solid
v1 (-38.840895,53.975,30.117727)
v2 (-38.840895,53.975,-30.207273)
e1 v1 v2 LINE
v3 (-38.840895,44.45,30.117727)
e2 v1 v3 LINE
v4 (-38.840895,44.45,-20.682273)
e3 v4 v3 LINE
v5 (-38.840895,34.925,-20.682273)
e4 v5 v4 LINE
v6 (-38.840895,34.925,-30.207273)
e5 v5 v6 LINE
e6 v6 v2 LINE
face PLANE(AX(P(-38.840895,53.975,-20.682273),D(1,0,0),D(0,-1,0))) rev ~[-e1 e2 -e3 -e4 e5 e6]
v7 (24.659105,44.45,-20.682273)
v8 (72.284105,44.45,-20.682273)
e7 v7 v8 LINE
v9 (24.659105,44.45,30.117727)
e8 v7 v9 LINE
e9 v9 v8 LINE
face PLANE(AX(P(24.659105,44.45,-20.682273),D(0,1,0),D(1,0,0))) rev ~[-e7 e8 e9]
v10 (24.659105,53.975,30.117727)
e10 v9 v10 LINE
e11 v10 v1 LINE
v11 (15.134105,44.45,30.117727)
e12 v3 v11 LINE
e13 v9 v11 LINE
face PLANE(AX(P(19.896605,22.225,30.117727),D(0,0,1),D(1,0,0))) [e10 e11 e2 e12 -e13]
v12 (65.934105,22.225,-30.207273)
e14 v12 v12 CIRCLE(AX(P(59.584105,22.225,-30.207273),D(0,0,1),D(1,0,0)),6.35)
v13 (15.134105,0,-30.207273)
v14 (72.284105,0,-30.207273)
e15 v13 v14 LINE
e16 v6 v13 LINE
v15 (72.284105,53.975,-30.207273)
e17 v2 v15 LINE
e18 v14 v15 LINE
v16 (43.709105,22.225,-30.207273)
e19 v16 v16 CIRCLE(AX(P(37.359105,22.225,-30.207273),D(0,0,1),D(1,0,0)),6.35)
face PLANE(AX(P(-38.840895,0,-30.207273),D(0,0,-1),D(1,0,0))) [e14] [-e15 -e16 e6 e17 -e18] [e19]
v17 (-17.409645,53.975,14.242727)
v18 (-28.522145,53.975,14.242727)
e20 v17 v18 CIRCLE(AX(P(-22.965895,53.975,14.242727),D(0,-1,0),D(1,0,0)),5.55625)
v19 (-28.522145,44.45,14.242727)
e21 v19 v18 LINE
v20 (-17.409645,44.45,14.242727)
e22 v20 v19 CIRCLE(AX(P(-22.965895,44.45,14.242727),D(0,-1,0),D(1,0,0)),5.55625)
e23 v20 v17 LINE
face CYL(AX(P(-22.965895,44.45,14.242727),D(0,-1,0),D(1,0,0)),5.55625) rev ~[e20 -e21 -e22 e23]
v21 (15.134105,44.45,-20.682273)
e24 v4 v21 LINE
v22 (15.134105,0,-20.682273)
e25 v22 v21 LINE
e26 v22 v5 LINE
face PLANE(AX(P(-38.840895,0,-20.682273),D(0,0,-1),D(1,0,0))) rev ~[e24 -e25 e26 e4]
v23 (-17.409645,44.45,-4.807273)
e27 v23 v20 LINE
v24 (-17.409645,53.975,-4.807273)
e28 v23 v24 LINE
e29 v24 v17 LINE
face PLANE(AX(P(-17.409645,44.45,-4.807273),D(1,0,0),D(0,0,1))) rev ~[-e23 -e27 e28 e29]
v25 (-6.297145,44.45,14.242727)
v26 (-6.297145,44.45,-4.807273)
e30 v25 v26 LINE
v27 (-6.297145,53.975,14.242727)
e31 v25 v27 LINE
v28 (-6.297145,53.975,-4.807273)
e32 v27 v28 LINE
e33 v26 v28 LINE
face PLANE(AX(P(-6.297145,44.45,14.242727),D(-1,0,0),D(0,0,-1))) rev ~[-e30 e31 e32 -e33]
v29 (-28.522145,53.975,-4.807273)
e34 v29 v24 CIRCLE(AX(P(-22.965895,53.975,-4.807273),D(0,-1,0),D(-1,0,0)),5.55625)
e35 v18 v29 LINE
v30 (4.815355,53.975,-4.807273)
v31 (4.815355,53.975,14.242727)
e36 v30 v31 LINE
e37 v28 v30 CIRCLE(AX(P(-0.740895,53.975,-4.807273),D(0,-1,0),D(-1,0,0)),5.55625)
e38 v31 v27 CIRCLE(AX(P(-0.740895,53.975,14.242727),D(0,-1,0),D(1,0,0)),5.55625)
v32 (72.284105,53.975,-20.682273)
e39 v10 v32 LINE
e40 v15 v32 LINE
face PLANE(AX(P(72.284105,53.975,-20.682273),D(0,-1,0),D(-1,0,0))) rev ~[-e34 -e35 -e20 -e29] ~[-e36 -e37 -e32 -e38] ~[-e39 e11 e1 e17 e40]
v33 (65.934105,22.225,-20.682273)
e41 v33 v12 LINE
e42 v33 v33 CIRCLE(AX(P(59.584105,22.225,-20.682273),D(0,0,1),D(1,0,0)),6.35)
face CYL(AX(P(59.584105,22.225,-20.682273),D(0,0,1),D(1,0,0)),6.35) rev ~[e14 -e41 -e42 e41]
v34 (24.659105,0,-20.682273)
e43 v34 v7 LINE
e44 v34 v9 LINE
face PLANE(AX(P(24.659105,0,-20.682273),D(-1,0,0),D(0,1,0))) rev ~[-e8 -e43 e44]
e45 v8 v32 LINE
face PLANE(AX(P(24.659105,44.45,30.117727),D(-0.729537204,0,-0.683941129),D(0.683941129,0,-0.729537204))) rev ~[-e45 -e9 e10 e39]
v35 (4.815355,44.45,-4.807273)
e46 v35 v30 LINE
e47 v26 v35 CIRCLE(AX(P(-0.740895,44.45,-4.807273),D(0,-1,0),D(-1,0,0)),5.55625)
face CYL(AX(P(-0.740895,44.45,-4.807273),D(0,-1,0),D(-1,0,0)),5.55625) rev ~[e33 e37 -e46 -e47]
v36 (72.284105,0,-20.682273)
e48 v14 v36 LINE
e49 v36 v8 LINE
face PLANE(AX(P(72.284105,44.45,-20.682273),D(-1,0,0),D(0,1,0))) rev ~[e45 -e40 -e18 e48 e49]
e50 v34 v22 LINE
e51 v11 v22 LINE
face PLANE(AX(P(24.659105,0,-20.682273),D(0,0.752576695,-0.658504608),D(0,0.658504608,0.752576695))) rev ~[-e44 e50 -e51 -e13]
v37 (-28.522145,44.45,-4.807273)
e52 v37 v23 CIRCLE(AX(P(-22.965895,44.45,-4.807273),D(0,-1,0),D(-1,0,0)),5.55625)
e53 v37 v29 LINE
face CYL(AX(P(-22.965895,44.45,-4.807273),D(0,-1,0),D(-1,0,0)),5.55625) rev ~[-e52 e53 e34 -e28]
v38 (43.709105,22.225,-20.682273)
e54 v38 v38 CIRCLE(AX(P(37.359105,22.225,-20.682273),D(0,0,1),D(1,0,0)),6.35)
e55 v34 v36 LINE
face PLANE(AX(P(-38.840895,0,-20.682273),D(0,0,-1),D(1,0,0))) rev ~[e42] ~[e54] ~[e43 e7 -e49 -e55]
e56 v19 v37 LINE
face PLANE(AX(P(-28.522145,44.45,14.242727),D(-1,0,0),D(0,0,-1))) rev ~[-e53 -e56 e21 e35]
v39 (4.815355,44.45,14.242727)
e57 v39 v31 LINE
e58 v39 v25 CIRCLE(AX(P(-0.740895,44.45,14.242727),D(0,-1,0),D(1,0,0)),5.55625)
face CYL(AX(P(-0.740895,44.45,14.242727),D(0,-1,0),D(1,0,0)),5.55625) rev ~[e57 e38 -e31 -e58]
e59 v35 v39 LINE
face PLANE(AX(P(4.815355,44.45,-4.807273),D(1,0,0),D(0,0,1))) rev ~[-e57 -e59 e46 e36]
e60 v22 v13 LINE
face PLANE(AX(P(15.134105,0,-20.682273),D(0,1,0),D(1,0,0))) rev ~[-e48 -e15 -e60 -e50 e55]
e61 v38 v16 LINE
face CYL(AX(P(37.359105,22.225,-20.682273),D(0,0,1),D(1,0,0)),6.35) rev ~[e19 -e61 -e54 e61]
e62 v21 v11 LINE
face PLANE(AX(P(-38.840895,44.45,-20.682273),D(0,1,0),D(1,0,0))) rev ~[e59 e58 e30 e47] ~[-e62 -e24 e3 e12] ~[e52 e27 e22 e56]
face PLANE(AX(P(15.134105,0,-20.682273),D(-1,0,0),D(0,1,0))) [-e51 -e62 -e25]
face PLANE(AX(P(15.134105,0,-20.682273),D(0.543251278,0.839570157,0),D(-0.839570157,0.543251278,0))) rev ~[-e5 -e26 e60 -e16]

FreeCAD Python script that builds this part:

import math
import FreeCAD as App
import Part
import Sketcher
from FreeCAD import Vector
Q = App.Units.Quantity

doc = App.newDocument("Part")
body = doc.addObject("PartDesign::Body", "Body")

# Sketch on XZ plane
sketch1 = body.newObject("Sketcher::SketchObject", "Sketch")
sketch1.AttachmentSupport = (doc.getObject("XZ_Plane"), [""])
sketch1.MapMode = "FlatFace"
sketch1.addGeometry(Part.LineSegment(Vector(-39, -21, 0), Vector(-39, -30, 0)), False)
sketch1.addGeometry(Part.LineSegment(Vector(-39, -30, 0), Vector(72, -30, 0)), False)
sketch1.addGeometry(Part.LineSegment(Vector(72, -30, 0), Vector(72, -21, 0)), False)
sketch1.addGeometry(Part.LineSegment(Vector(72, -21, 0), Vector(-39, -21, 0)), False)
sketch1.addConstraint(Sketcher.Constraint("Coincident", 0, 2, 1, 1))
sketch1.addConstraint(Sketcher.Constraint("Coincident", 1, 2, 2, 1))
sketch1.addConstraint(Sketcher.Constraint("Coincident", 2, 2, 3, 1))
sketch1.addConstraint(Sketcher.Constraint("Coincident", 3, 2, 0, 1))
sketch1.addConstraint(Sketcher.Constraint("Vertical", 0))
sketch1.addConstraint(Sketcher.Constraint("Horizontal", 1))
sketch1.addConstraint(Sketcher.Constraint("Vertical", 2))
sketch1.addConstraint(Sketcher.Constraint("Horizontal", 3))
sketch1.addConstraint(Sketcher.Constraint("DistanceX", 1, 1, 1, 2, Q("4.375 in")))
sketch1.addConstraint(Sketcher.Constraint("DistanceY", 0, 2, 0, 1, Q("0.375 in")))
sketch1.addConstraint(Sketcher.Constraint("DistanceX", 0, 2, -1, 1, 38.840895))
sketch1.addConstraint(Sketcher.Constraint("DistanceY", 0, 2, -1, 1, 30.207273))
pad1 = body.newObject("PartDesign::Pad", "Pad")
pad1.Profile = sketch1
pad1.Length = Q("2.125 in")
pad1.Reversed = True

# Sketch on XY plane
sketch2 = body.newObject("Sketcher::SketchObject", "Sketch001")
sketch2.AttachmentSupport = (doc.getObject("XY_Plane"), [""])
sketch2.MapMode = "FlatFace"
sketch2.AttachmentOffset = App.Placement(Vector(0, 0, -20.682273), App.Rotation())
sketch2.addGeometry(Part.LineSegment(Vector(15, 0, 0), Vector(-39, 35, 0)), False)
sketch2.addGeometry(Part.LineSegment(Vector(-39, 35, 0), Vector(-39, 0, 0)), False)
sketch2.addGeometry(Part.LineSegment(Vector(-39, 0, 0), Vector(15, 0, 0)), False)
sketch2.addConstraint(Sketcher.Constraint("Coincident", 0, 2, 1, 1))
sketch2.addConstraint(Sketcher.Constraint("Coincident", 1, 2, 2, 1))
sketch2.addConstraint(Sketcher.Constraint("Coincident", 2, 2, 0, 1))
sketch2.addConstraint(Sketcher.Constraint("Vertical", 1))
sketch2.addConstraint(Sketcher.Constraint("Horizontal", 2))
sketch2.addConstraint(Sketcher.Constraint("PointOnObject", 1, 2, -1))
sketch2.addConstraint(Sketcher.Constraint("DistanceX", 2, 1, 2, 2, Q("2.125 in")))
sketch2.addConstraint(Sketcher.Constraint("DistanceY", 1, 2, 1, 1, Q("1.375 in")))
sketch2.addConstraint(Sketcher.Constraint("DistanceX", 0, 2, -1, 1, 38.840895))
pocket1 = body.newObject("PartDesign::Pocket", "Pocket")
pocket1.Profile = sketch2
pocket1.Type = "ThroughAll"

# Sketch on XY plane
sketch3 = body.newObject("Sketcher::SketchObject", "Sketch002")
sketch3.AttachmentSupport = (doc.getObject("XY_Plane"), [""])
sketch3.MapMode = "FlatFace"
sketch3.AttachmentOffset = App.Placement(Vector(0, 0, -20.682273), App.Rotation())
sketch3.addGeometry(Part.LineSegment(Vector(15, 44, 0), Vector(15, 0, 0)), False)
sketch3.addGeometry(Part.LineSegment(Vector(15, 0, 0), Vector(25, 0, 0)), False)
sketch3.addGeometry(Part.LineSegment(Vector(25, 0, 0), Vector(25, 44, 0)), False)
sketch3.addGeometry(Part.LineSegment(Vector(25, 44, 0), Vector(72, 44, 0)), False)
sketch3.addGeometry(Part.LineSegment(Vector(72, 44, 0), Vector(72, 54, 0)), False)
sketch3.addGeometry(Part.LineSegment(Vector(72, 54, 0), Vector(-39, 54, 0)), False)
sketch3.addGeometry(Part.LineSegment(Vector(-39, 54, 0), Vector(-39, 44, 0)), False)
sketch3.addGeometry(Part.LineSegment(Vector(-39, 44, 0), Vector(15, 44, 0)), False)
sketch3.addConstraint(Sketcher.Constraint("Coincident", 0, 2, 1, 1))
sketch3.addConstraint(Sketcher.Constraint("Coincident", 1, 2, 2, 1))
sketch3.addConstraint(Sketcher.Constraint("Coincident", 2, 2, 3, 1))
sketch3.addConstraint(Sketcher.Constraint("Coincident", 3, 2, 4, 1))
sketch3.addConstraint(Sketcher.Constraint("Coincident", 4, 2, 5, 1))
sketch3.addConstraint(Sketcher.Constraint("Coincident", 5, 2, 6, 1))
sketch3.addConstraint(Sketcher.Constraint("Coincident", 6, 2, 7, 1))
sketch3.addConstraint(Sketcher.Constraint("Coincident", 7, 2, 0, 1))
sketch3.addConstraint(Sketcher.Constraint("Vertical", 0))
sketch3.addConstraint(Sketcher.Constraint("Horizontal", 1))
sketch3.addConstraint(Sketcher.Constraint("Vertical", 2))
sketch3.addConstraint(Sketcher.Constraint("Horizontal", 3))
sketch3.addConstraint(Sketcher.Constraint("Vertical", 4))
sketch3.addConstraint(Sketcher.Constraint("Horizontal", 5))
sketch3.addConstraint(Sketcher.Constraint("Vertical", 6))
sketch3.addConstraint(Sketcher.Constraint("Horizontal", 7))
sketch3.addConstraint(Sketcher.Constraint("PointOnObject", 0, 2, -1))
sketch3.addConstraint(Sketcher.Constraint("Horizontal", 3, 2, 6, 2))
sketch3.addConstraint(Sketcher.Constraint("Equal", 1, 4))
sketch3.addConstraint(Sketcher.Constraint("DistanceY", 0, 2, 0, 1, Q("1.75 in")))
sketch3.addConstraint(Sketcher.Constraint("DistanceX", 5, 2, 2, 2, Q("2.5 in")))
sketch3.addConstraint(Sketcher.Constraint("DistanceX", 1, 1, 1, 2, Q("0.375 in")))
sketch3.addConstraint(Sketcher.Constraint("DistanceX", 3, 1, 3, 2, Q("1.875 in")))
sketch3.addConstraint(Sketcher.Constraint("DistanceX", -1, 1, 0, 2, 15.134105))
pad2 = body.newObject("PartDesign::Pad", "Pad001")
pad2.Profile = sketch3
pad2.Length = Q("2 in")

# Sketch on YZ plane
sketch4 = body.newObject("Sketcher::SketchObject", "Sketch003")
sketch4.AttachmentSupport = (doc.getObject("YZ_Plane"), [""])
sketch4.MapMode = "FlatFace"
sketch4.AttachmentOffset = App.Placement(Vector(0, 0, 24.659105), App.Rotation())
sketch4.addGeometry(Part.LineSegment(Vector(0, 30, 0), Vector(0, -21, 0)), False)
sketch4.addGeometry(Part.LineSegment(Vector(0, -21, 0), Vector(44, 30, 0)), False)
sketch4.addGeometry(Part.LineSegment(Vector(44, 30, 0), Vector(0, 30, 0)), False)
sketch4.addConstraint(Sketcher.Constraint("Coincident", 0, 2, 1, 1))
sketch4.addConstraint(Sketcher.Constraint("Coincident", 1, 2, 2, 1))
sketch4.addConstraint(Sketcher.Constraint("Coincident", 2, 2, 0, 1))
sketch4.addConstraint(Sketcher.Constraint("Vertical", 0))
sketch4.addConstraint(Sketcher.Constraint("Horizontal", 2))
sketch4.addConstraint(Sketcher.Constraint("PointOnObject", 0, 2, -2))
sketch4.addConstraint(Sketcher.Constraint("DistanceY", 0, 2, 0, 1, Q("2 in")))
sketch4.addConstraint(Sketcher.Constraint("DistanceX", 2, 2, 2, 1, Q("1.75 in")))
sketch4.addConstraint(Sketcher.Constraint("DistanceY", 0, 2, -1, 1, 20.682273))
pocket2 = body.newObject("PartDesign::Pocket", "Pocket001")
pocket2.Profile = sketch4
pocket2.Type = "ThroughAll"

# Sketch on XZ plane
sketch5 = body.newObject("Sketcher::SketchObject", "Sketch004")
sketch5.AttachmentSupport = (doc.getObject("XZ_Plane"), [""])
sketch5.MapMode = "FlatFace"
sketch5.AttachmentOffset = App.Placement(Vector(0, 0, -1.75 * 25.4), App.Rotation())
sketch5.addGeometry(Part.LineSegment(Vector(72, 30, 0), Vector(25, 30, 0)), False)
sketch5.addGeometry(Part.LineSegment(Vector(25, 30, 0), Vector(72, -21, 0)), False)
sketch5.addGeometry(Part.LineSegment(Vector(72, -21, 0), Vector(72, 30, 0)), False)
sketch5.addConstraint(Sketcher.Constraint("Coincident", 0, 2, 1, 1))
sketch5.addConstraint(Sketcher.Constraint("Coincident", 1, 2, 2, 1))
sketch5.addConstraint(Sketcher.Constraint("Coincident", 2, 2, 0, 1))
sketch5.addConstraint(Sketcher.Constraint("Horizontal", 0))
sketch5.addConstraint(Sketcher.Constraint("Vertical", 2))
sketch5.addConstraint(Sketcher.Constraint("DistanceY", 2, 1, 2, 2, Q("2 in")))
sketch5.addConstraint(Sketcher.Constraint("DistanceX", 0, 2, 0, 1, Q("1.875 in")))
sketch5.addConstraint(Sketcher.Constraint("DistanceX", -1, 1, 0, 2, 24.659105))
sketch5.addConstraint(Sketcher.Constraint("DistanceY", -1, 1, 0, 2, 30.117727))
pocket3 = body.newObject("PartDesign::Pocket", "Pocket002")
pocket3.Profile = sketch5
pocket3.Type = "ThroughAll"

# Sketch on XY plane
sketch6 = body.newObject("Sketcher::SketchObject", "Sketch005")
sketch6.AttachmentSupport = (doc.getObject("XY_Plane"), [""])
sketch6.MapMode = "FlatFace"
sketch6.AttachmentOffset = App.Placement(Vector(0, 0, -20.682273), App.Rotation())
sketch6.addGeometry(Part.Circle(Vector(37, 22, 0), Vector(0, 0, 1), 6), False)
sketch6.addGeometry(Part.Circle(Vector(60, 22, 0), Vector(0, 0, 1), 6), False)
sketch6.addConstraint(Sketcher.Constraint("Equal", 0, 1))
sketch6.addConstraint(Sketcher.Constraint("Horizontal", 0, 3, 1, 3))
sketch6.addConstraint(Sketcher.Constraint("Diameter", 0, Q("0.5 in")))
sketch6.addConstraint(Sketcher.Constraint("DistanceY", -1, 1, 0, 3, Q("0.875 in")))
sketch6.addConstraint(Sketcher.Constraint("DistanceX", 0, 3, 1, 3, Q("0.875 in")))
sketch6.addConstraint(Sketcher.Constraint("DistanceX", -1, 1, 0, 3, 37.359105))
pocket4 = body.newObject("PartDesign::Pocket", "Pocket003")
pocket4.Profile = sketch6
pocket4.Type = "ThroughAll"

# Sketch on XZ plane
sketch7 = body.newObject("Sketcher::SketchObject", "Sketch006")
sketch7.AttachmentSupport = (doc.getObject("XZ_Plane"), [""])
sketch7.MapMode = "FlatFace"
sketch7.AttachmentOffset = App.Placement(Vector(0, 0, -1.75 * 25.4), App.Rotation())
sketch7.addGeometry(Part.LineSegment(Vector(-29, 14, 0), Vector(-29, -5, 0)), False)
sketch7.addGeometry(Part.ArcOfCircle(Part.Circle(Vector(-23, -5, 0), Vector(0, 0, 1), 6), math.radians(180), math.radians(360)), False)
sketch7.addGeometry(Part.LineSegment(Vector(-17, -5, 0), Vector(-17, 14, 0)), False)
sketch7.addGeometry(Part.ArcOfCircle(Part.Circle(Vector(-23, 14, 0), Vector(0, 0, 1), 6), math.radians(0), math.radians(180)), False)
sketch7.addGeometry(Part.ArcOfCircle(Part.Circle(Vector(-1, -5, 0), Vector(0, 0, 1), 6), math.radians(180), math.radians(360)), False)
sketch7.addGeometry(Part.LineSegment(Vector(5, -5, 0), Vector(5, 14, 0)), False)
sketch7.addGeometry(Part.ArcOfCircle(Part.Circle(Vector(-1, 14, 0), Vector(0, 0, 1), 6), math.radians(0), math.radians(180)), False)
sketch7.addGeometry(Part.LineSegment(Vector(-6, 14, 0), Vector(-6, -5, 0)), False)
sketch7.addConstraint(Sketcher.Constraint("Tangent", 0, 2, 1, 1))
sketch7.addConstraint(Sketcher.Constraint("Tangent", 1, 2, 2, 1))
sketch7.addConstraint(Sketcher.Constraint("Tangent", 2, 2, 3, 1))
sketch7.addConstraint(Sketcher.Constraint("Tangent", 3, 2, 0, 1))
sketch7.addConstraint(Sketcher.Constraint("Tangent", 4, 2, 5, 1))
sketch7.addConstraint(Sketcher.Constraint("Tangent", 5, 2, 6, 1))
sketch7.addConstraint(Sketcher.Constraint("Tangent", 6, 2, 7, 1))
sketch7.addConstraint(Sketcher.Constraint("Tangent", 7, 2, 4, 1))
sketch7.addConstraint(Sketcher.Constraint("Vertical", 0))
sketch7.addConstraint(Sketcher.Constraint("Vertical", 2))
sketch7.addConstraint(Sketcher.Constraint("Vertical", 5))
sketch7.addConstraint(Sketcher.Constraint("Vertical", 7))
sketch7.addConstraint(Sketcher.Constraint("Equal", 3, 4))
sketch7.addConstraint(Sketcher.Constraint("Horizontal", 1, 3, 4, 3))
sketch7.addConstraint(Sketcher.Constraint("Horizontal", 3, 3, 6, 3))
sketch7.addConstraint(Sketcher.Constraint("Radius", 1, Q("0.21875 in")))
sketch7.addConstraint(Sketcher.Constraint("DistanceY", 0, 2, 0, 1, Q("0.75 in")))
sketch7.addConstraint(Sketcher.Constraint("DistanceX", 1, 3, 4, 3, Q("0.875 in")))
sketch7.addConstraint(Sketcher.Constraint("DistanceX", 1, 3, -1, 1, 22.965895))
sketch7.addConstraint(Sketcher.Constraint("DistanceY", 1, 3, -1, 1, 4.807273))
pocket5 = body.newObject("PartDesign::Pocket", "Pocket004")
pocket5.Profile = sketch7
pocket5.Type = "ThroughAll"

doc.recompute()
